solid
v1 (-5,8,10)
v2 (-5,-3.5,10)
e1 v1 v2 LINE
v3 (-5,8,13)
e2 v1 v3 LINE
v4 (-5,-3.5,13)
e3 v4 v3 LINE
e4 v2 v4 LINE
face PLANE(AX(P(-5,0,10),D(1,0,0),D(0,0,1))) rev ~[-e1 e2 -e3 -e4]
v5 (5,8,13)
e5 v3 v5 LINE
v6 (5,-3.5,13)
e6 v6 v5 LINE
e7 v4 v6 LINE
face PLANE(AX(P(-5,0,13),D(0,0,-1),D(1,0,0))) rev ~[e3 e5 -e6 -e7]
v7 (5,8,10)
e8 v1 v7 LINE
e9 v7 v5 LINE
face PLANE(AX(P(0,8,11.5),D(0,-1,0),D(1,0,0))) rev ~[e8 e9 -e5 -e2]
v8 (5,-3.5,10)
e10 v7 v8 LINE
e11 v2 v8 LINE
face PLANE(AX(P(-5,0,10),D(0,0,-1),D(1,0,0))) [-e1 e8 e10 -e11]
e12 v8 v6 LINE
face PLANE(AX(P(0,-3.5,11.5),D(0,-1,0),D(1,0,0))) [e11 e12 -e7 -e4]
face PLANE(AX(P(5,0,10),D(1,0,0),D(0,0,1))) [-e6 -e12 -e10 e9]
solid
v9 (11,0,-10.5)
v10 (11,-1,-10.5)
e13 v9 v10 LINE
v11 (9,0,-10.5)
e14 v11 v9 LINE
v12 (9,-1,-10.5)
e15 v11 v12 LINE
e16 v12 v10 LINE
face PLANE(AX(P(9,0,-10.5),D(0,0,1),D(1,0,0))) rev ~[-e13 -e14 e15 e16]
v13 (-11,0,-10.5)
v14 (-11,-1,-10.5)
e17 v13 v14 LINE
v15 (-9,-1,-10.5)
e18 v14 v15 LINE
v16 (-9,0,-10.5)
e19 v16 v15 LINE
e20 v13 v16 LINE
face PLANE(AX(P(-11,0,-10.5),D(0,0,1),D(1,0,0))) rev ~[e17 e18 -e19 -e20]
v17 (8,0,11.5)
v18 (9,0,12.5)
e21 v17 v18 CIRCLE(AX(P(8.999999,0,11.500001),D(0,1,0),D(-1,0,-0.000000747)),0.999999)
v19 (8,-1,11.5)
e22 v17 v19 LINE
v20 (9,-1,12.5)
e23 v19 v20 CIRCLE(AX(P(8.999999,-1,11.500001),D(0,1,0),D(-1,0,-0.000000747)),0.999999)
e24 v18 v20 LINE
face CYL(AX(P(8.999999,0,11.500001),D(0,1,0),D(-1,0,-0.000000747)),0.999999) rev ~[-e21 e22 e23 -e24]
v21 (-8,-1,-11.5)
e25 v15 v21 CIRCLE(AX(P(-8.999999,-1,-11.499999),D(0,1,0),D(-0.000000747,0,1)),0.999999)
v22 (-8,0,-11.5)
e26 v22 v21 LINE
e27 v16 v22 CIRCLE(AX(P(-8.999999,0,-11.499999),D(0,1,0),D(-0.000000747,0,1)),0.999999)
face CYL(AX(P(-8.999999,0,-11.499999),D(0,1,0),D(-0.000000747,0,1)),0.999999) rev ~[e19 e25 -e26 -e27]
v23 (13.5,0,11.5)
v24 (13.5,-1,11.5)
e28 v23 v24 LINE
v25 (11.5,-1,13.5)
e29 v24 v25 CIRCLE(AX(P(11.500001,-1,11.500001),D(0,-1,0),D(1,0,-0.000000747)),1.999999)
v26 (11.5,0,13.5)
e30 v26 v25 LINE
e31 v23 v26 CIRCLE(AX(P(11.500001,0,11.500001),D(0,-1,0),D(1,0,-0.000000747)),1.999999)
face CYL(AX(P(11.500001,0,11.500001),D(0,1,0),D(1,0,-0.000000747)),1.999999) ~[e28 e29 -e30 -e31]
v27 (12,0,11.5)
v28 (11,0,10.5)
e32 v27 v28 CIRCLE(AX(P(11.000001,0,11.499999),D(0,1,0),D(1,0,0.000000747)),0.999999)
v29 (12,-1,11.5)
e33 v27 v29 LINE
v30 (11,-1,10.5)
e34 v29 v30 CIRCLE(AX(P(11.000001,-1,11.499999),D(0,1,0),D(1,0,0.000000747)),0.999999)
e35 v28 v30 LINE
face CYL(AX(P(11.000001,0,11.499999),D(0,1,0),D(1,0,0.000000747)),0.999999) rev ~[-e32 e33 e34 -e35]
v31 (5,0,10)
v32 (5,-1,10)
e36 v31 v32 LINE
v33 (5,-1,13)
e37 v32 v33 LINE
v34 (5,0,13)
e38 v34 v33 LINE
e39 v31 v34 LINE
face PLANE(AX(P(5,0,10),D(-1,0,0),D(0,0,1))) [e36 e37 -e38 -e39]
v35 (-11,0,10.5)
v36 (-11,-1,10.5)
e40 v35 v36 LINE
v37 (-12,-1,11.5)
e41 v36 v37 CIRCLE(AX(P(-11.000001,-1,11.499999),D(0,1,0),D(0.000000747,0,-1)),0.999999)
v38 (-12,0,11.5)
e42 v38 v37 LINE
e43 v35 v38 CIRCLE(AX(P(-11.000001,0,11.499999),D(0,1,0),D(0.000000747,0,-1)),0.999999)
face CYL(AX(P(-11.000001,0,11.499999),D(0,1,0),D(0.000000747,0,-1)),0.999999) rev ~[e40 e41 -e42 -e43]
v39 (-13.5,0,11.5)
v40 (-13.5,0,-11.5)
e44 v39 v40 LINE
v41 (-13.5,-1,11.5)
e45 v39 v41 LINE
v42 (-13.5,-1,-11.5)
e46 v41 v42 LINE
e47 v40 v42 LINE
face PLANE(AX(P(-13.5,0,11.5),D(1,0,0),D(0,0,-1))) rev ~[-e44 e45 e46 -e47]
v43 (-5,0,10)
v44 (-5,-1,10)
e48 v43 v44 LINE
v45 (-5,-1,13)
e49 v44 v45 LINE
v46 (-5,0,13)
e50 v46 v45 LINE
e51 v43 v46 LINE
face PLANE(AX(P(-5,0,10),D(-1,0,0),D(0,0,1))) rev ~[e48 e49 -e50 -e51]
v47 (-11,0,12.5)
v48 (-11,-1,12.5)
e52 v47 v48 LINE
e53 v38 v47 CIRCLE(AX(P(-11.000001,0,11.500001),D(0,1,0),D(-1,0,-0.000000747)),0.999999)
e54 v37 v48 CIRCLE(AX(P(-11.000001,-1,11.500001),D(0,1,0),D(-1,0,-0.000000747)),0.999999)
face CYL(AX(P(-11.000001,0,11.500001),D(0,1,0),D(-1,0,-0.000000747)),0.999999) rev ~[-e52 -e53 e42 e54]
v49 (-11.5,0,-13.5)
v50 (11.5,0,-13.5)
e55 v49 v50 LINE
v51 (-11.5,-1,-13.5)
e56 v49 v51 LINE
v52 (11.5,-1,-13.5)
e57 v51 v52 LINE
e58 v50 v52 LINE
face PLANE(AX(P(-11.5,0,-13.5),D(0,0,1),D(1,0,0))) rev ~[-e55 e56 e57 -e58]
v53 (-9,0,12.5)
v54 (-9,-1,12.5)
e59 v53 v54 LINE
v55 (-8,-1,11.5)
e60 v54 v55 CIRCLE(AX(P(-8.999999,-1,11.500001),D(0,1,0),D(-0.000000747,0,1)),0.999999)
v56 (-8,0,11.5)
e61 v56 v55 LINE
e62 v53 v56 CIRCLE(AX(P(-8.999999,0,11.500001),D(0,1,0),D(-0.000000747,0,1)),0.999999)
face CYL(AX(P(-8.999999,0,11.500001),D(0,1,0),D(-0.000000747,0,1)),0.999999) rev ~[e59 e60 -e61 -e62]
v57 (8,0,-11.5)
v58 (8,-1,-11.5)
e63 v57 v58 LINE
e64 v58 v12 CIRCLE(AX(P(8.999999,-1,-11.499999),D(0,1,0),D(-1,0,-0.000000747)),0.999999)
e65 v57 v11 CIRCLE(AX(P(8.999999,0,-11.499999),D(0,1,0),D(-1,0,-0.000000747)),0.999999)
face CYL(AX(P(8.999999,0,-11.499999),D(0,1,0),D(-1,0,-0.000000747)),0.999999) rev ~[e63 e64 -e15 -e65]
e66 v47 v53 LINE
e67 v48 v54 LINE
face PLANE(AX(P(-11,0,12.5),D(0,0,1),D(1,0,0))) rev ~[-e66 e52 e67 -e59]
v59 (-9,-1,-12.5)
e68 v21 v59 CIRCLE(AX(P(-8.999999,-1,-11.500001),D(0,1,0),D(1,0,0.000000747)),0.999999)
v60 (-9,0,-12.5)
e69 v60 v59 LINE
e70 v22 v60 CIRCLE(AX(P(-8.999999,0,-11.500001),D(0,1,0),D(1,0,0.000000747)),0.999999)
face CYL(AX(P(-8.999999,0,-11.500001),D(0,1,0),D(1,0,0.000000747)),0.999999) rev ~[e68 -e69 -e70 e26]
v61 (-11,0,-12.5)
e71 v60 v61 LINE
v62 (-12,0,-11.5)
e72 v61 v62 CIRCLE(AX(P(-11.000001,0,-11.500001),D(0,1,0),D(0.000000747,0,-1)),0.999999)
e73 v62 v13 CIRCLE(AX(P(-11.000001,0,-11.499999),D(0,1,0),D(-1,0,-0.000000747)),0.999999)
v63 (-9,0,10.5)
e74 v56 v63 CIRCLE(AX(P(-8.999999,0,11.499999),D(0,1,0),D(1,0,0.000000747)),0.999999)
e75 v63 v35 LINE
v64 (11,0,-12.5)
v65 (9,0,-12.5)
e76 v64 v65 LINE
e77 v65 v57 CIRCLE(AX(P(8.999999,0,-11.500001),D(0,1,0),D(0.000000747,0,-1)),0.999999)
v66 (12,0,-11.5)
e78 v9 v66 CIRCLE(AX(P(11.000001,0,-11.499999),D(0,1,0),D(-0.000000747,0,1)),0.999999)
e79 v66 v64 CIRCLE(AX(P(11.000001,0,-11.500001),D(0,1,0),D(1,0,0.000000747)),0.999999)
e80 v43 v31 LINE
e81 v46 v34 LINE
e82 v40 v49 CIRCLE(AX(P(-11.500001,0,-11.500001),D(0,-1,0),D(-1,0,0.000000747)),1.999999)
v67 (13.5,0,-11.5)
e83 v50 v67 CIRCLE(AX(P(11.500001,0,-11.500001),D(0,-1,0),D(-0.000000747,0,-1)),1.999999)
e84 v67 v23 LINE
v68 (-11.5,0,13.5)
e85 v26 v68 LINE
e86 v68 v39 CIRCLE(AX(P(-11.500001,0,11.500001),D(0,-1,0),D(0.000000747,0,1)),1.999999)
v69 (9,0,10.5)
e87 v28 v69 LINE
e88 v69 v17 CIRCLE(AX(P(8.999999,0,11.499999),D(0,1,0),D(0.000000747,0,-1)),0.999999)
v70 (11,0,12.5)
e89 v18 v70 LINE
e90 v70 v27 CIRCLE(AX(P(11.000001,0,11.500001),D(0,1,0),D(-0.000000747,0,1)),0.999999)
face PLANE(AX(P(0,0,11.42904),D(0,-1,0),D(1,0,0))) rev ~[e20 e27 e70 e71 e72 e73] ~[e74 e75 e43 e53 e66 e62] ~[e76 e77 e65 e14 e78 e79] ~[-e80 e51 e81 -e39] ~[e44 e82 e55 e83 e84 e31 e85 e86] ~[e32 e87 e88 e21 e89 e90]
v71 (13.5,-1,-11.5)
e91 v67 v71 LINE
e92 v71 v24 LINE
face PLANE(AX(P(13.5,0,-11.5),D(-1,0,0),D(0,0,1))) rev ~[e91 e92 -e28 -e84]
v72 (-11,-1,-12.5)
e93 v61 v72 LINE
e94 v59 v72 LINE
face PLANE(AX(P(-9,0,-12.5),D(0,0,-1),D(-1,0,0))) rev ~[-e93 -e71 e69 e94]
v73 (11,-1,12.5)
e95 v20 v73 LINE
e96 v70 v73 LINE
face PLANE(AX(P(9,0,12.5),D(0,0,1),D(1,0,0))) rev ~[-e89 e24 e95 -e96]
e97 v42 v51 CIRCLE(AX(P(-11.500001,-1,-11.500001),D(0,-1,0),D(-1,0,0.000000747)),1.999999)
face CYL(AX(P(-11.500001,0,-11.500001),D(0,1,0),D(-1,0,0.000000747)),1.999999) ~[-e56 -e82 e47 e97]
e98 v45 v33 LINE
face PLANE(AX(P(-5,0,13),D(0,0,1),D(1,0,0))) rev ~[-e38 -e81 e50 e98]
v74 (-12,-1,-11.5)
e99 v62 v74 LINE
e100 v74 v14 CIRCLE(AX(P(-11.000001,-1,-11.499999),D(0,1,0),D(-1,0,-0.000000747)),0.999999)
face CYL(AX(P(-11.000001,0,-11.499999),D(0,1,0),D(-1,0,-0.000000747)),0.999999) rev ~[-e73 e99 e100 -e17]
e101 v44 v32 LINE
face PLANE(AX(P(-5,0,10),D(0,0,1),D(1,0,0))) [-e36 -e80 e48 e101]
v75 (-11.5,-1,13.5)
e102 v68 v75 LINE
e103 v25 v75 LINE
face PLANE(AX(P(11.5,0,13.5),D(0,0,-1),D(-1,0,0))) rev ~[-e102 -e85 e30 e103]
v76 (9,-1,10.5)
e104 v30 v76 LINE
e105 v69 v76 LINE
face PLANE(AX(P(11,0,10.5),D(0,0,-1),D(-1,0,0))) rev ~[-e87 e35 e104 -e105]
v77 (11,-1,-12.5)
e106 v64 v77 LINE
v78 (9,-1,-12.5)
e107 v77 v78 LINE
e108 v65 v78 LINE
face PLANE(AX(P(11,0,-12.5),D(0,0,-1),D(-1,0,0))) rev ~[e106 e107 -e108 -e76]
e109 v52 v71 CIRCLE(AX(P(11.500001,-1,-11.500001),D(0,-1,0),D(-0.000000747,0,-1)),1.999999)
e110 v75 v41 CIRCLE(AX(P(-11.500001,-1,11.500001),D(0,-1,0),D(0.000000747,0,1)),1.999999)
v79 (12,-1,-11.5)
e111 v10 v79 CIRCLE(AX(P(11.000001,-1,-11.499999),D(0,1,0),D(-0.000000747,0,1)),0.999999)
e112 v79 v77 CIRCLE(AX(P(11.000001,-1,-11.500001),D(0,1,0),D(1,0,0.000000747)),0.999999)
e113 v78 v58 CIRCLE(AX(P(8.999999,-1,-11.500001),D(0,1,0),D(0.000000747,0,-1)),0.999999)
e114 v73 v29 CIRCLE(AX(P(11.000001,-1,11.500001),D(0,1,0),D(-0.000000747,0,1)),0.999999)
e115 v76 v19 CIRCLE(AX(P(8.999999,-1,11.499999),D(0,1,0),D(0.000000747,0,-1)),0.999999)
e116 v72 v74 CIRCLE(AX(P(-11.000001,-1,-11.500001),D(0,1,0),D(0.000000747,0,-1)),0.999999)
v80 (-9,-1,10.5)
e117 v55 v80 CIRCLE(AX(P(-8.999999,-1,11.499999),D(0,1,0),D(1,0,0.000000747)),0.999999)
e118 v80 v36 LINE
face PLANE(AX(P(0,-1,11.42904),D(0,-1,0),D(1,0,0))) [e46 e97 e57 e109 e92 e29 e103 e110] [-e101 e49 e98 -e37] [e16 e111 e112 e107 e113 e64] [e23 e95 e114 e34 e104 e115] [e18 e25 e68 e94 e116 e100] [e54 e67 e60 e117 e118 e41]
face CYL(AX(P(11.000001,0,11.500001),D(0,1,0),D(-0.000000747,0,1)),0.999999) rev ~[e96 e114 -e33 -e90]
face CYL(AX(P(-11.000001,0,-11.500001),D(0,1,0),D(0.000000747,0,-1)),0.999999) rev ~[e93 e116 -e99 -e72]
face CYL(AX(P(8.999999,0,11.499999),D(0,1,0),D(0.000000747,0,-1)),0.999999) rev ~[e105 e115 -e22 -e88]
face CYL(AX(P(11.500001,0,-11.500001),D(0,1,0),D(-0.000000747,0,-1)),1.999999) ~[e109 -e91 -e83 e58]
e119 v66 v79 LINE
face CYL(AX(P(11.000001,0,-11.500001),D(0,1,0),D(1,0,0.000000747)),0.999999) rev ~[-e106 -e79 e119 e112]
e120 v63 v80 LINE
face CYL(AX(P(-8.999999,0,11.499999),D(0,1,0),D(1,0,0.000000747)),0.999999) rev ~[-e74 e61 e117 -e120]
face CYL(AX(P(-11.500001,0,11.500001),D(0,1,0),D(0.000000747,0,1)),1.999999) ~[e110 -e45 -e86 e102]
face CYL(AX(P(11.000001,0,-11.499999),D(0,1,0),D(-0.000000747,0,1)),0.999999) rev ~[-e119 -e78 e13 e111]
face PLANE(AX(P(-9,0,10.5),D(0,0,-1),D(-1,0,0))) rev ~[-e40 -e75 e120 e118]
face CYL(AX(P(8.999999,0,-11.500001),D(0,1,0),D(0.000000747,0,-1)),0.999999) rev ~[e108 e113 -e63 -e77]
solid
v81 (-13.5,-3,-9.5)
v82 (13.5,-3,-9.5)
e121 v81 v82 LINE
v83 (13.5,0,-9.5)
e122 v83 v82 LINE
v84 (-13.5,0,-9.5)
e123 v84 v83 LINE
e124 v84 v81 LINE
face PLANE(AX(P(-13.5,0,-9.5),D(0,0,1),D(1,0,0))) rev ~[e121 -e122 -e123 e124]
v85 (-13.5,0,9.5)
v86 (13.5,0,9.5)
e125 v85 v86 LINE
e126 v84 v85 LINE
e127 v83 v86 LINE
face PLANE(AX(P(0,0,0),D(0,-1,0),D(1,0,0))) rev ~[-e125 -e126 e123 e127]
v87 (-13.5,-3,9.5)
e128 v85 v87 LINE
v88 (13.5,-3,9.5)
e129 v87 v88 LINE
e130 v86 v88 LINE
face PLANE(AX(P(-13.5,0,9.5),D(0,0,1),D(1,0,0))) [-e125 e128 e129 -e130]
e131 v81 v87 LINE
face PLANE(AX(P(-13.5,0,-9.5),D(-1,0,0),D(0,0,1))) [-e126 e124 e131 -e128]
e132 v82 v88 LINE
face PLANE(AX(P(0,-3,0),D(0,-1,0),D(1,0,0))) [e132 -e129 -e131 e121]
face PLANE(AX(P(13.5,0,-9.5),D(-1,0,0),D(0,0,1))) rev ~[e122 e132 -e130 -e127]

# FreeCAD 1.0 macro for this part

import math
import FreeCAD as App
import Part
import Sketcher
from FreeCAD import Vector


def add_polygon(sketch, points):
    """Adds a closed chain of lines whose ends are joined by coincident constraints."""
    first, n = sketch.GeometryCount, len(points)
    for a, b in zip(points, points[1:] + points[:1]):
        sketch.addGeometry(Part.LineSegment(App.Vector(*a, 0), App.Vector(*b, 0)), False)
    for i in range(n):
        sketch.addConstraint(Sketcher.Constraint("Coincident", first + i, 2, first + (i + 1) % n, 1))

doc = App.newDocument("Part")
body = doc.addObject("PartDesign::Body", "Body")

sketch1 = body.newObject("Sketcher::SketchObject", "Sketch")
sketch1.AttachmentSupport = (doc.getObject("XZ_Plane"), [""])
sketch1.MapMode = "FlatFace"
sketch1.addGeometry(Part.LineSegment(Vector(-13.5, 11.5, 0), Vector(-13.5, -11.5, 0)), False)
sketch1.addGeometry(Part.ArcOfCircle(Part.Circle(Vector(-11.5, -11.5, 0), Vector(0, 0, 1), 2), math.radians(180), math.radians(270)), False)
sketch1.addGeometry(Part.LineSegment(Vector(-11.5, -13.5, 0), Vector(11.5, -13.5, 0)), False)
sketch1.addGeometry(Part.ArcOfCircle(Part.Circle(Vector(11.5, -11.5, 0), Vector(0, 0, 1), 2), math.radians(-90), math.radians(0)), False)
sketch1.addGeometry(Part.LineSegment(Vector(13.5, -11.5, 0), Vector(13.5, 11.5, 0)), False)
sketch1.addGeometry(Part.ArcOfCircle(Part.Circle(Vector(11.5, 11.5, 0), Vector(0, 0, 1), 2), math.radians(0), math.radians(90)), False)
sketch1.addGeometry(Part.LineSegment(Vector(11.5, 13.5, 0), Vector(-11.5, 13.5, 0)), False)
sketch1.addGeometry(Part.ArcOfCircle(Part.Circle(Vector(-11.5, 11.5, 0), Vector(0, 0, 1), 2), math.radians(90), math.radians(180)), False)
sketch1.addGeometry(Part.LineSegment(Vector(-9, -12.5, 0), Vector(-11, -12.5, 0)), False)
sketch1.addGeometry(Part.ArcOfCircle(Part.Circle(Vector(-11, -11.5, 0), Vector(0, 0, 1), 1), math.radians(180), math.radians(270)), False)
sketch1.addGeometry(Part.ArcOfCircle(Part.Circle(Vector(-11, -11.5, 0), Vector(0, 0, 1), 1), math.radians(90), math.radians(180)), False)
sketch1.addGeometry(Part.LineSegment(Vector(-11, -10.5, 0), Vector(-9, -10.5, 0)), False)
sketch1.addGeometry(Part.ArcOfCircle(Part.Circle(Vector(-9, -11.5, 0), Vector(0, 0, 1), 1), math.radians(0), math.radians(90)), False)
sketch1.addGeometry(Part.ArcOfCircle(Part.Circle(Vector(-9, -11.5, 0), Vector(0, 0, 1), 1), math.radians(-90), math.radians(0)), False)
sketch1.addGeometry(Part.ArcOfCircle(Part.Circle(Vector(11, -11.5, 0), Vector(0, 0, 1), 1), math.radians(0), math.radians(90)), False)
sketch1.addGeometry(Part.ArcOfCircle(Part.Circle(Vector(11, -11.5, 0), Vector(0, 0, 1), 1), math.radians(-90), math.radians(0)), False)
sketch1.addGeometry(Part.LineSegment(Vector(11, -12.5, 0), Vector(9, -12.5, 0)), False)
sketch1.addGeometry(Part.ArcOfCircle(Part.Circle(Vector(9, -11.5, 0), Vector(0, 0, 1), 1), math.radians(180), math.radians(270)), False)
sketch1.addGeometry(Part.ArcOfCircle(Part.Circle(Vector(9, -11.5, 0), Vector(0, 0, 1), 1), math.radians(90), math.radians(180)), False)
sketch1.addGeometry(Part.LineSegment(Vector(9, -10.5, 0), Vector(11, -10.5, 0)), False)
sketch1.addGeometry(Part.ArcOfCircle(Part.Circle(Vector(-9, 11.5, 0), Vector(0, 0, 1), 1), math.radians(0), math.radians(90)), False)
sketch1.addGeometry(Part.ArcOfCircle(Part.Circle(Vector(-9, 11.5, 0), Vector(0, 0, 1), 1), math.radians(-90), math.radians(0)), False)
sketch1.addGeometry(Part.LineSegment(Vector(-9, 10.5, 0), Vector(-11, 10.5, 0)), False)
sketch1.addGeometry(Part.ArcOfCircle(Part.Circle(Vector(-11, 11.5, 0), Vector(0, 0, 1), 1), math.radians(180), math.radians(270)), False)
sketch1.addGeometry(Part.ArcOfCircle(Part.Circle(Vector(-11, 11.5, 0), Vector(0, 0, 1), 1), math.radians(90), math.radians(180)), False)
sketch1.addGeometry(Part.LineSegment(Vector(-11, 12.5, 0), Vector(-9, 12.5, 0)), False)
add_polygon(sketch1, [(5, 10), (-5, 10), (-5, 13), (5, 13)])
sketch1.addGeometry(Part.LineSegment(Vector(11, 10.5, 0), Vector(9, 10.5, 0)), False)
sketch1.addGeometry(Part.ArcOfCircle(Part.Circle(Vector(9, 11.5, 0), Vector(0, 0, 1), 1), math.radians(180), math.radians(270)), False)
sketch1.addGeometry(Part.ArcOfCircle(Part.Circle(Vector(9, 11.5, 0), Vector(0, 0, 1), 1), math.radians(90), math.radians(180)), False)
sketch1.addGeometry(Part.LineSegment(Vector(9, 12.5, 0), Vector(11, 12.5, 0)), False)
sketch1.addGeometry(Part.ArcOfCircle(Part.Circle(Vector(11, 11.5, 0), Vector(0, 0, 1), 1), math.radians(0), math.radians(90)), False)
sketch1.addGeometry(Part.ArcOfCircle(Part.Circle(Vector(11, 11.5, 0), Vector(0, 0, 1), 1), math.radians(-90), math.radians(0)), False)
sketch1.addConstraint([
    Sketcher.Constraint("Tangent", 0, 2, 1, 1),
    Sketcher.Constraint("Tangent", 1, 2, 2, 1),
    Sketcher.Constraint("Tangent", 2, 2, 3, 1),
    Sketcher.Constraint("Tangent", 3, 2, 4, 1),
    Sketcher.Constraint("Tangent", 4, 2, 5, 1),
    Sketcher.Constraint("Tangent", 5, 2, 6, 1),
    Sketcher.Constraint("Tangent", 6, 2, 7, 1),
    Sketcher.Constraint("Tangent", 7, 2, 0, 1),
    Sketcher.Constraint("Tangent", 8, 2, 9, 2),
    Sketcher.Constraint("Tangent", 9, 1, 10, 2),
    Sketcher.Constraint("Tangent", 10, 1, 11, 1),
    Sketcher.Constraint("Tangent", 11, 2, 12, 2),
    Sketcher.Constraint("Tangent", 12, 1, 13, 2),
    Sketcher.Constraint("Tangent", 13, 1, 8, 1),
    Sketcher.Constraint("Tangent", 14, 1, 15, 2),
    Sketcher.Constraint("Tangent", 15, 1, 16, 1),
    Sketcher.Constraint("Tangent", 16, 2, 17, 2),
    Sketcher.Constraint("Tangent", 17, 1, 18, 2),
    Sketcher.Constraint("Tangent", 18, 1, 19, 1),
    Sketcher.Constraint("Tangent", 19, 2, 14, 2),
    Sketcher.Constraint("Tangent", 20, 1, 21, 2),
    Sketcher.Constraint("Tangent", 21, 1, 22, 1),
    Sketcher.Constraint("Tangent", 22, 2, 23, 2),
    Sketcher.Constraint("Tangent", 23, 1, 24, 2),
    Sketcher.Constraint("Tangent", 24, 1, 25, 1),
    Sketcher.Constraint("Tangent", 25, 2, 20, 2),
    Sketcher.Constraint("Tangent", 30, 2, 31, 2),
    Sketcher.Constraint("Tangent", 31, 1, 32, 2),
    Sketcher.Constraint("Tangent", 32, 1, 33, 1),
    Sketcher.Constraint("Tangent", 33, 2, 34, 2),
    Sketcher.Constraint("Tangent", 34, 1, 35, 2),
    Sketcher.Constraint("Tangent", 35, 1, 30, 1),
    Sketcher.Constraint("Vertical", 0),
    Sketcher.Constraint("Horizontal", 2),
    Sketcher.Constraint("Vertical", 4),
    Sketcher.Constraint("Horizontal", 6),
    Sketcher.Constraint("Horizontal", 8),
    Sketcher.Constraint("Horizontal", 11),
    Sketcher.Constraint("Horizontal", 16),
    Sketcher.Constraint("Horizontal", 19),
    Sketcher.Constraint("Horizontal", 22),
    Sketcher.Constraint("Horizontal", 25),
    Sketcher.Constraint("Horizontal", 26),
    Sketcher.Constraint("Vertical", 27),
    Sketcher.Constraint("Horizontal", 28),
    Sketcher.Constraint("Vertical", 29),
    Sketcher.Constraint("Horizontal", 30),
    Sketcher.Constraint("Horizontal", 33),
    Sketcher.Constraint("Equal", 1, 3),
    Sketcher.Constraint("Equal", 3, 5),
    Sketcher.Constraint("Equal", 5, 7),
    Sketcher.Constraint("Equal", 9, 10),
    Sketcher.Constraint("Equal", 10, 12),
    Sketcher.Constraint("Equal", 13, 14),
    Sketcher.Constraint("Equal", 14, 15),
    Sketcher.Constraint("Equal", 15, 17),
    Sketcher.Constraint("Equal", 18, 20),
    Sketcher.Constraint("Equal", 20, 21),
    Sketcher.Constraint("Equal", 21, 23),
    Sketcher.Constraint("Equal", 24, 31),
    Sketcher.Constraint("Equal", 31, 32),
    Sketcher.Constraint("Equal", 32, 34),
    Sketcher.Constraint("Symmetric", 1, 3, 5, 3, -1, 1),
    Sketcher.Constraint("Symmetric", 17, 3, 20, 3, -1, 1),
    Sketcher.Constraint("Symmetric", 12, 3, 31, 3, -1, 1),
    Sketcher.Constraint("Symmetric", 14, 1, 23, 1, -1, 1),
    Sketcher.Constraint("Symmetric", 9, 1, 34, 1, -1, 1),
    Sketcher.Constraint("Symmetric", 9, 3, 14, 3, -2),
    Sketcher.Constraint("Symmetric", 12, 1, 17, 1, -2),
    Sketcher.Constraint("Horizontal", 3, 3, 9, 3),
    Sketcher.Constraint("Horizontal", 3, 2, 9, 1),
    Sketcher.Constraint("Horizontal", 9, 1, 12, 1),
    Sketcher.Constraint("Horizontal", 12, 1, 14, 1),
    Sketcher.Constraint("Horizontal", 7, 2, 20, 1),
    Sketcher.Constraint("Horizontal", 23, 1, 31, 1),
    Sketcher.Constraint("Equal", 6, 0),
    Sketcher.Constraint("Radius", 1, 1.999999),
    Sketcher.Constraint("Radius", 9, 0.999999),
    Sketcher.Constraint("DistanceX", 2, 1, 2, 2, 23.0),
    Sketcher.Constraint("DistanceX", 8, 2, 8, 1, 2.0),
    Sketcher.Constraint("DistanceX", 26, 2, 26, 1, 10.0),
    Sketcher.Constraint("DistanceY", 27, 1, 27, 2, 3.0),
    Sketcher.Constraint("DistanceX", 9, 3, -1, 1, 11.000001),
    Sketcher.Constraint("DistanceX", 26, 2, -1, 1, 5.0),
    Sketcher.Constraint("DistanceY", -1, 1, 26, 2, 10.0),
])
pad1 = body.newObject("PartDesign::Pad", "Pad")
pad1.Profile = sketch1
pad1.Length = 1
body2 = doc.addObject("PartDesign::Body", "Body001")

sketch2 = body2.newObject("Sketcher::SketchObject", "Sketch001")
sketch2.AttachmentSupport = (doc.getObject("XZ_Plane001"), [""])
sketch2.MapMode = "FlatFace"
add_polygon(sketch2, [(-14, 10), (-14, -10), (14, -10), (14, 10)])
sketch2.addConstraint([
    Sketcher.Constraint("Vertical", 0),
    Sketcher.Constraint("Horizontal", 1),
    Sketcher.Constraint("Vertical", 2),
    Sketcher.Constraint("Horizontal", 3),
    Sketcher.Constraint("Symmetric", 0, 2, 2, 2, -1, 1),
    Sketcher.Constraint("DistanceX", 1, 1, 1, 2, 27.0),
    Sketcher.Constraint("DistanceY", 0, 2, 0, 1, 19.0),
])
pad2 = body2.newObject("PartDesign::Pad", "Pad001")
pad2.Profile = sketch2
pad2.Length = 3
body3 = doc.addObject("PartDesign::Body", "Body002")

sketch3 = body3.newObject("Sketcher::SketchObject", "Sketch002")
sketch3.AttachmentSupport = (doc.getObject("XZ_Plane002"), [""])
sketch3.MapMode = "FlatFace"
add_polygon(sketch3, [(-5, 13), (-5, 10), (5, 10), (5, 13)])
sketch3.addConstraint([
    Sketcher.Constraint("Vertical", 0),
    Sketcher.Constraint("Horizontal", 1),
    Sketcher.Constraint("Vertical", 2),
    Sketcher.Constraint("Horizontal", 3),
    Sketcher.Constraint("DistanceX", 1, 1, 1, 2, 10.0),
    Sketcher.Constraint("DistanceY", 0, 2, 0, 1, 3.0),
    Sketcher.Constraint("DistanceX", 0, 2, -1, 1, 5.0),
    Sketcher.Constraint("DistanceY", -1, 1, 0, 2, 10.0),
])
pad3 = body3.newObject("PartDesign::Pad", "Pad002")
pad3.Profile = sketch3
pad3.Type = "TwoLengths"
pad3.Length = 3.5
pad3.Length2 = 8

doc.recompute()
